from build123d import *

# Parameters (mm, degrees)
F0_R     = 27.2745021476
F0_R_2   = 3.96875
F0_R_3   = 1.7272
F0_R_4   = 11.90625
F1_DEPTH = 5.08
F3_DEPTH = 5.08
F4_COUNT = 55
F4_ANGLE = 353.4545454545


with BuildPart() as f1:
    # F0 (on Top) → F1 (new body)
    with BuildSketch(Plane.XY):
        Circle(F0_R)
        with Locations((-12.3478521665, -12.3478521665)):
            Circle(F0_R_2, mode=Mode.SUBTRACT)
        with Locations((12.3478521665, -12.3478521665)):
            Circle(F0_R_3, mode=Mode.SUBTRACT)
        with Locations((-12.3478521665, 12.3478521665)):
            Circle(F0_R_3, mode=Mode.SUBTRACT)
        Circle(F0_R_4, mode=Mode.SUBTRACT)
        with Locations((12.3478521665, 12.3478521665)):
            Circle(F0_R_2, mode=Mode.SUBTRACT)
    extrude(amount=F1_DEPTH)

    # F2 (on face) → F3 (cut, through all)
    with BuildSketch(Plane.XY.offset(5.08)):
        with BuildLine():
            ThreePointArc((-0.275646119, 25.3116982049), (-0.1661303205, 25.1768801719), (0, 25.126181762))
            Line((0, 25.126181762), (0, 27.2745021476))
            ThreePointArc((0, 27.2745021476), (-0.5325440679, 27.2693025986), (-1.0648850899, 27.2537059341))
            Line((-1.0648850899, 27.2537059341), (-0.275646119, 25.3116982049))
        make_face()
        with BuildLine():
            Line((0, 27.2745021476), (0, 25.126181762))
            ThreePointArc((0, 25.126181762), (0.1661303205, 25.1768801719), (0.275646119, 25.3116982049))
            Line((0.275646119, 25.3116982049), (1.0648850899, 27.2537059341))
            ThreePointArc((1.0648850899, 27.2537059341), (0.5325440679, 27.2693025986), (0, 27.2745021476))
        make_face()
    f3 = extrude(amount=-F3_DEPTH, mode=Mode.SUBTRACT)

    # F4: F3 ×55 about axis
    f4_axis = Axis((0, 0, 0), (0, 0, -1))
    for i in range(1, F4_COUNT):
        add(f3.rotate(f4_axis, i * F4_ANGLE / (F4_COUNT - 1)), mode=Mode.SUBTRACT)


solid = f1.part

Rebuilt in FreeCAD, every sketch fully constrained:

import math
import FreeCAD as App
import Part
import Sketcher
from FreeCAD import Vector
Q = App.Units.Quantity

doc = App.newDocument("Part")
body = doc.addObject("PartDesign::Body", "Body")

sketch1 = body.newObject("Sketcher::SketchObject", "Sketch")
sketch1.AttachmentSupport = (doc.getObject("XY_Plane"), [""])
sketch1.MapMode = "FlatFace"
sketch1.addGeometry([
    Part.Circle(Vector(0, 0, 0), Vector(0, 0, 1), 27.274502),
    Part.Circle(Vector(-12.347852, -12.347852, 0), Vector(0, 0, 1), 3.96875),
    Part.Circle(Vector(12.347852, -12.347852, 0), Vector(0, 0, 1), 1.7272),
    Part.Circle(Vector(0, 0, 0), Vector(0, 0, 1), 11.90625),
    Part.Circle(Vector(-12.347852, 12.347852, 0), Vector(0, 0, 1), 1.7272),
    Part.Circle(Vector(12.347852, 12.347852, 0), Vector(0, 0, 1), 3.96875),
], False)
sketch1.addConstraint([
    Sketcher.Constraint("Coincident", 0, 3, -1, 1),
    Sketcher.Constraint("Coincident", 3, 3, -1, 1),
    Sketcher.Constraint("Equal", 2, 4),
    Sketcher.Constraint("Equal", 1, 5),
    Sketcher.Constraint("Symmetric", 2, 3, 4, 3, -1, 1),
    Sketcher.Constraint("Symmetric", 1, 3, 5, 3, -1, 1),
    Sketcher.Constraint("Symmetric", 1, 3, 2, 3, -2),
    Sketcher.Constraint("Diameter", 1, Q("0.3125 in")),
    Sketcher.Constraint("Diameter", 2, Q("0.136 in")),
    Sketcher.Constraint("Diameter", 3, Q("0.9375 in")),
    Sketcher.Constraint("Diameter", 0, Q("54.549004 mm")),
    Sketcher.Constraint("DistanceX", 1, 3, -1, 1, Q("12.347852 mm")),
    Sketcher.Constraint("DistanceY", 1, 3, -1, 1, Q("12.347852 mm")),
])
pad1 = body.newObject("PartDesign::Pad", "Pad")
pad1.Profile = sketch1
pad1.Length = Q("0.2 in")

sketch2 = body.newObject("Sketcher::SketchObject", "Sketch001")
sketch2.AttachmentSupport = (doc.getObject("XY_Plane"), [""])
sketch2.MapMode = "FlatFace"
sketch2.AttachmentOffset = App.Placement(Vector(0, 0, 0.2 * 25.4), App.Rotation())
sketch2.addGeometry([
    Part.ArcOfCircle(Part.Circle(Vector(0, 25.423722, 0), Vector(0, 0, 1), 0.29754), math.radians(-157.882997), math.radians(-90)),
    Part.ArcOfCircle(Part.Circle(Vector(0, 25.423722, 0), Vector(0, 0, 1), 0.29754), math.radians(-90), math.radians(-22.117003)),
    Part.LineSegment(Vector(0.275646, 25.311698, 0), Vector(1.064885, 27.253706, 0)),
    Part.ArcOfCircle(Part.Circle(Vector(0, 0, 0), Vector(0, 0, 1), 27.274502), math.radians(87.762418), math.radians(90)),
    Part.ArcOfCircle(Part.Circle(Vector(0, 0, 0), Vector(0, 0, 1), 27.274502), math.radians(90), math.radians(92.237582)),
    Part.LineSegment(Vector(-1.064885, 27.253706, 0), Vector(-0.275646, 25.311698, 0)),
], False)
sketch2.addConstraint([
    Sketcher.Constraint("Tangent", 0, 2, 1, 1),
    Sketcher.Constraint("Tangent", 1, 2, 2, 1),
    Sketcher.Constraint("Coincident", 2, 2, 3, 1),
    Sketcher.Constraint("Tangent", 3, 2, 4, 1),
    Sketcher.Constraint("Coincident", 4, 2, 5, 1),
    Sketcher.Constraint("Tangent", 5, 2, 0, 1),
    Sketcher.Constraint("Coincident", 3, 3, -1, 1),
    Sketcher.Constraint("Equal", 0, 1),
    Sketcher.Constraint("Equal", 3, 4),
    Sketcher.Constraint("Symmetric", 1, 2, 5, 2, -2),
    Sketcher.Constraint("PointOnObject", 0, 2, -2),
    Sketcher.Constraint("PointOnObject", 3, 2, -2),
    Sketcher.Constraint("Radius", 0, Q("0.29754 mm")),
    Sketcher.Constraint("Radius", 3, Q("27.274502 mm")),
    Sketcher.Constraint("DistanceY", -1, 1, 1, 2, Q("25.311698 mm")),
    Sketcher.Constraint("DistanceY", -1, 1, 0, 3, Q("25.423722 mm")),
])
pocket1 = body.newObject("PartDesign::Pocket", "Pocket")
pocket1.Profile = sketch2
pocket1.Type = "ThroughAll"
doc.recompute()

polarpattern = body.newObject("PartDesign::PolarPattern", "PolarPattern")
polarpattern.Originals = [pocket1]
polarpattern.Axis = (doc.getObject("Z_Axis"), [""])
polarpattern.Angle = 360
polarpattern.Occurrences = 55
body.Tip = polarpattern

doc.recompute()
